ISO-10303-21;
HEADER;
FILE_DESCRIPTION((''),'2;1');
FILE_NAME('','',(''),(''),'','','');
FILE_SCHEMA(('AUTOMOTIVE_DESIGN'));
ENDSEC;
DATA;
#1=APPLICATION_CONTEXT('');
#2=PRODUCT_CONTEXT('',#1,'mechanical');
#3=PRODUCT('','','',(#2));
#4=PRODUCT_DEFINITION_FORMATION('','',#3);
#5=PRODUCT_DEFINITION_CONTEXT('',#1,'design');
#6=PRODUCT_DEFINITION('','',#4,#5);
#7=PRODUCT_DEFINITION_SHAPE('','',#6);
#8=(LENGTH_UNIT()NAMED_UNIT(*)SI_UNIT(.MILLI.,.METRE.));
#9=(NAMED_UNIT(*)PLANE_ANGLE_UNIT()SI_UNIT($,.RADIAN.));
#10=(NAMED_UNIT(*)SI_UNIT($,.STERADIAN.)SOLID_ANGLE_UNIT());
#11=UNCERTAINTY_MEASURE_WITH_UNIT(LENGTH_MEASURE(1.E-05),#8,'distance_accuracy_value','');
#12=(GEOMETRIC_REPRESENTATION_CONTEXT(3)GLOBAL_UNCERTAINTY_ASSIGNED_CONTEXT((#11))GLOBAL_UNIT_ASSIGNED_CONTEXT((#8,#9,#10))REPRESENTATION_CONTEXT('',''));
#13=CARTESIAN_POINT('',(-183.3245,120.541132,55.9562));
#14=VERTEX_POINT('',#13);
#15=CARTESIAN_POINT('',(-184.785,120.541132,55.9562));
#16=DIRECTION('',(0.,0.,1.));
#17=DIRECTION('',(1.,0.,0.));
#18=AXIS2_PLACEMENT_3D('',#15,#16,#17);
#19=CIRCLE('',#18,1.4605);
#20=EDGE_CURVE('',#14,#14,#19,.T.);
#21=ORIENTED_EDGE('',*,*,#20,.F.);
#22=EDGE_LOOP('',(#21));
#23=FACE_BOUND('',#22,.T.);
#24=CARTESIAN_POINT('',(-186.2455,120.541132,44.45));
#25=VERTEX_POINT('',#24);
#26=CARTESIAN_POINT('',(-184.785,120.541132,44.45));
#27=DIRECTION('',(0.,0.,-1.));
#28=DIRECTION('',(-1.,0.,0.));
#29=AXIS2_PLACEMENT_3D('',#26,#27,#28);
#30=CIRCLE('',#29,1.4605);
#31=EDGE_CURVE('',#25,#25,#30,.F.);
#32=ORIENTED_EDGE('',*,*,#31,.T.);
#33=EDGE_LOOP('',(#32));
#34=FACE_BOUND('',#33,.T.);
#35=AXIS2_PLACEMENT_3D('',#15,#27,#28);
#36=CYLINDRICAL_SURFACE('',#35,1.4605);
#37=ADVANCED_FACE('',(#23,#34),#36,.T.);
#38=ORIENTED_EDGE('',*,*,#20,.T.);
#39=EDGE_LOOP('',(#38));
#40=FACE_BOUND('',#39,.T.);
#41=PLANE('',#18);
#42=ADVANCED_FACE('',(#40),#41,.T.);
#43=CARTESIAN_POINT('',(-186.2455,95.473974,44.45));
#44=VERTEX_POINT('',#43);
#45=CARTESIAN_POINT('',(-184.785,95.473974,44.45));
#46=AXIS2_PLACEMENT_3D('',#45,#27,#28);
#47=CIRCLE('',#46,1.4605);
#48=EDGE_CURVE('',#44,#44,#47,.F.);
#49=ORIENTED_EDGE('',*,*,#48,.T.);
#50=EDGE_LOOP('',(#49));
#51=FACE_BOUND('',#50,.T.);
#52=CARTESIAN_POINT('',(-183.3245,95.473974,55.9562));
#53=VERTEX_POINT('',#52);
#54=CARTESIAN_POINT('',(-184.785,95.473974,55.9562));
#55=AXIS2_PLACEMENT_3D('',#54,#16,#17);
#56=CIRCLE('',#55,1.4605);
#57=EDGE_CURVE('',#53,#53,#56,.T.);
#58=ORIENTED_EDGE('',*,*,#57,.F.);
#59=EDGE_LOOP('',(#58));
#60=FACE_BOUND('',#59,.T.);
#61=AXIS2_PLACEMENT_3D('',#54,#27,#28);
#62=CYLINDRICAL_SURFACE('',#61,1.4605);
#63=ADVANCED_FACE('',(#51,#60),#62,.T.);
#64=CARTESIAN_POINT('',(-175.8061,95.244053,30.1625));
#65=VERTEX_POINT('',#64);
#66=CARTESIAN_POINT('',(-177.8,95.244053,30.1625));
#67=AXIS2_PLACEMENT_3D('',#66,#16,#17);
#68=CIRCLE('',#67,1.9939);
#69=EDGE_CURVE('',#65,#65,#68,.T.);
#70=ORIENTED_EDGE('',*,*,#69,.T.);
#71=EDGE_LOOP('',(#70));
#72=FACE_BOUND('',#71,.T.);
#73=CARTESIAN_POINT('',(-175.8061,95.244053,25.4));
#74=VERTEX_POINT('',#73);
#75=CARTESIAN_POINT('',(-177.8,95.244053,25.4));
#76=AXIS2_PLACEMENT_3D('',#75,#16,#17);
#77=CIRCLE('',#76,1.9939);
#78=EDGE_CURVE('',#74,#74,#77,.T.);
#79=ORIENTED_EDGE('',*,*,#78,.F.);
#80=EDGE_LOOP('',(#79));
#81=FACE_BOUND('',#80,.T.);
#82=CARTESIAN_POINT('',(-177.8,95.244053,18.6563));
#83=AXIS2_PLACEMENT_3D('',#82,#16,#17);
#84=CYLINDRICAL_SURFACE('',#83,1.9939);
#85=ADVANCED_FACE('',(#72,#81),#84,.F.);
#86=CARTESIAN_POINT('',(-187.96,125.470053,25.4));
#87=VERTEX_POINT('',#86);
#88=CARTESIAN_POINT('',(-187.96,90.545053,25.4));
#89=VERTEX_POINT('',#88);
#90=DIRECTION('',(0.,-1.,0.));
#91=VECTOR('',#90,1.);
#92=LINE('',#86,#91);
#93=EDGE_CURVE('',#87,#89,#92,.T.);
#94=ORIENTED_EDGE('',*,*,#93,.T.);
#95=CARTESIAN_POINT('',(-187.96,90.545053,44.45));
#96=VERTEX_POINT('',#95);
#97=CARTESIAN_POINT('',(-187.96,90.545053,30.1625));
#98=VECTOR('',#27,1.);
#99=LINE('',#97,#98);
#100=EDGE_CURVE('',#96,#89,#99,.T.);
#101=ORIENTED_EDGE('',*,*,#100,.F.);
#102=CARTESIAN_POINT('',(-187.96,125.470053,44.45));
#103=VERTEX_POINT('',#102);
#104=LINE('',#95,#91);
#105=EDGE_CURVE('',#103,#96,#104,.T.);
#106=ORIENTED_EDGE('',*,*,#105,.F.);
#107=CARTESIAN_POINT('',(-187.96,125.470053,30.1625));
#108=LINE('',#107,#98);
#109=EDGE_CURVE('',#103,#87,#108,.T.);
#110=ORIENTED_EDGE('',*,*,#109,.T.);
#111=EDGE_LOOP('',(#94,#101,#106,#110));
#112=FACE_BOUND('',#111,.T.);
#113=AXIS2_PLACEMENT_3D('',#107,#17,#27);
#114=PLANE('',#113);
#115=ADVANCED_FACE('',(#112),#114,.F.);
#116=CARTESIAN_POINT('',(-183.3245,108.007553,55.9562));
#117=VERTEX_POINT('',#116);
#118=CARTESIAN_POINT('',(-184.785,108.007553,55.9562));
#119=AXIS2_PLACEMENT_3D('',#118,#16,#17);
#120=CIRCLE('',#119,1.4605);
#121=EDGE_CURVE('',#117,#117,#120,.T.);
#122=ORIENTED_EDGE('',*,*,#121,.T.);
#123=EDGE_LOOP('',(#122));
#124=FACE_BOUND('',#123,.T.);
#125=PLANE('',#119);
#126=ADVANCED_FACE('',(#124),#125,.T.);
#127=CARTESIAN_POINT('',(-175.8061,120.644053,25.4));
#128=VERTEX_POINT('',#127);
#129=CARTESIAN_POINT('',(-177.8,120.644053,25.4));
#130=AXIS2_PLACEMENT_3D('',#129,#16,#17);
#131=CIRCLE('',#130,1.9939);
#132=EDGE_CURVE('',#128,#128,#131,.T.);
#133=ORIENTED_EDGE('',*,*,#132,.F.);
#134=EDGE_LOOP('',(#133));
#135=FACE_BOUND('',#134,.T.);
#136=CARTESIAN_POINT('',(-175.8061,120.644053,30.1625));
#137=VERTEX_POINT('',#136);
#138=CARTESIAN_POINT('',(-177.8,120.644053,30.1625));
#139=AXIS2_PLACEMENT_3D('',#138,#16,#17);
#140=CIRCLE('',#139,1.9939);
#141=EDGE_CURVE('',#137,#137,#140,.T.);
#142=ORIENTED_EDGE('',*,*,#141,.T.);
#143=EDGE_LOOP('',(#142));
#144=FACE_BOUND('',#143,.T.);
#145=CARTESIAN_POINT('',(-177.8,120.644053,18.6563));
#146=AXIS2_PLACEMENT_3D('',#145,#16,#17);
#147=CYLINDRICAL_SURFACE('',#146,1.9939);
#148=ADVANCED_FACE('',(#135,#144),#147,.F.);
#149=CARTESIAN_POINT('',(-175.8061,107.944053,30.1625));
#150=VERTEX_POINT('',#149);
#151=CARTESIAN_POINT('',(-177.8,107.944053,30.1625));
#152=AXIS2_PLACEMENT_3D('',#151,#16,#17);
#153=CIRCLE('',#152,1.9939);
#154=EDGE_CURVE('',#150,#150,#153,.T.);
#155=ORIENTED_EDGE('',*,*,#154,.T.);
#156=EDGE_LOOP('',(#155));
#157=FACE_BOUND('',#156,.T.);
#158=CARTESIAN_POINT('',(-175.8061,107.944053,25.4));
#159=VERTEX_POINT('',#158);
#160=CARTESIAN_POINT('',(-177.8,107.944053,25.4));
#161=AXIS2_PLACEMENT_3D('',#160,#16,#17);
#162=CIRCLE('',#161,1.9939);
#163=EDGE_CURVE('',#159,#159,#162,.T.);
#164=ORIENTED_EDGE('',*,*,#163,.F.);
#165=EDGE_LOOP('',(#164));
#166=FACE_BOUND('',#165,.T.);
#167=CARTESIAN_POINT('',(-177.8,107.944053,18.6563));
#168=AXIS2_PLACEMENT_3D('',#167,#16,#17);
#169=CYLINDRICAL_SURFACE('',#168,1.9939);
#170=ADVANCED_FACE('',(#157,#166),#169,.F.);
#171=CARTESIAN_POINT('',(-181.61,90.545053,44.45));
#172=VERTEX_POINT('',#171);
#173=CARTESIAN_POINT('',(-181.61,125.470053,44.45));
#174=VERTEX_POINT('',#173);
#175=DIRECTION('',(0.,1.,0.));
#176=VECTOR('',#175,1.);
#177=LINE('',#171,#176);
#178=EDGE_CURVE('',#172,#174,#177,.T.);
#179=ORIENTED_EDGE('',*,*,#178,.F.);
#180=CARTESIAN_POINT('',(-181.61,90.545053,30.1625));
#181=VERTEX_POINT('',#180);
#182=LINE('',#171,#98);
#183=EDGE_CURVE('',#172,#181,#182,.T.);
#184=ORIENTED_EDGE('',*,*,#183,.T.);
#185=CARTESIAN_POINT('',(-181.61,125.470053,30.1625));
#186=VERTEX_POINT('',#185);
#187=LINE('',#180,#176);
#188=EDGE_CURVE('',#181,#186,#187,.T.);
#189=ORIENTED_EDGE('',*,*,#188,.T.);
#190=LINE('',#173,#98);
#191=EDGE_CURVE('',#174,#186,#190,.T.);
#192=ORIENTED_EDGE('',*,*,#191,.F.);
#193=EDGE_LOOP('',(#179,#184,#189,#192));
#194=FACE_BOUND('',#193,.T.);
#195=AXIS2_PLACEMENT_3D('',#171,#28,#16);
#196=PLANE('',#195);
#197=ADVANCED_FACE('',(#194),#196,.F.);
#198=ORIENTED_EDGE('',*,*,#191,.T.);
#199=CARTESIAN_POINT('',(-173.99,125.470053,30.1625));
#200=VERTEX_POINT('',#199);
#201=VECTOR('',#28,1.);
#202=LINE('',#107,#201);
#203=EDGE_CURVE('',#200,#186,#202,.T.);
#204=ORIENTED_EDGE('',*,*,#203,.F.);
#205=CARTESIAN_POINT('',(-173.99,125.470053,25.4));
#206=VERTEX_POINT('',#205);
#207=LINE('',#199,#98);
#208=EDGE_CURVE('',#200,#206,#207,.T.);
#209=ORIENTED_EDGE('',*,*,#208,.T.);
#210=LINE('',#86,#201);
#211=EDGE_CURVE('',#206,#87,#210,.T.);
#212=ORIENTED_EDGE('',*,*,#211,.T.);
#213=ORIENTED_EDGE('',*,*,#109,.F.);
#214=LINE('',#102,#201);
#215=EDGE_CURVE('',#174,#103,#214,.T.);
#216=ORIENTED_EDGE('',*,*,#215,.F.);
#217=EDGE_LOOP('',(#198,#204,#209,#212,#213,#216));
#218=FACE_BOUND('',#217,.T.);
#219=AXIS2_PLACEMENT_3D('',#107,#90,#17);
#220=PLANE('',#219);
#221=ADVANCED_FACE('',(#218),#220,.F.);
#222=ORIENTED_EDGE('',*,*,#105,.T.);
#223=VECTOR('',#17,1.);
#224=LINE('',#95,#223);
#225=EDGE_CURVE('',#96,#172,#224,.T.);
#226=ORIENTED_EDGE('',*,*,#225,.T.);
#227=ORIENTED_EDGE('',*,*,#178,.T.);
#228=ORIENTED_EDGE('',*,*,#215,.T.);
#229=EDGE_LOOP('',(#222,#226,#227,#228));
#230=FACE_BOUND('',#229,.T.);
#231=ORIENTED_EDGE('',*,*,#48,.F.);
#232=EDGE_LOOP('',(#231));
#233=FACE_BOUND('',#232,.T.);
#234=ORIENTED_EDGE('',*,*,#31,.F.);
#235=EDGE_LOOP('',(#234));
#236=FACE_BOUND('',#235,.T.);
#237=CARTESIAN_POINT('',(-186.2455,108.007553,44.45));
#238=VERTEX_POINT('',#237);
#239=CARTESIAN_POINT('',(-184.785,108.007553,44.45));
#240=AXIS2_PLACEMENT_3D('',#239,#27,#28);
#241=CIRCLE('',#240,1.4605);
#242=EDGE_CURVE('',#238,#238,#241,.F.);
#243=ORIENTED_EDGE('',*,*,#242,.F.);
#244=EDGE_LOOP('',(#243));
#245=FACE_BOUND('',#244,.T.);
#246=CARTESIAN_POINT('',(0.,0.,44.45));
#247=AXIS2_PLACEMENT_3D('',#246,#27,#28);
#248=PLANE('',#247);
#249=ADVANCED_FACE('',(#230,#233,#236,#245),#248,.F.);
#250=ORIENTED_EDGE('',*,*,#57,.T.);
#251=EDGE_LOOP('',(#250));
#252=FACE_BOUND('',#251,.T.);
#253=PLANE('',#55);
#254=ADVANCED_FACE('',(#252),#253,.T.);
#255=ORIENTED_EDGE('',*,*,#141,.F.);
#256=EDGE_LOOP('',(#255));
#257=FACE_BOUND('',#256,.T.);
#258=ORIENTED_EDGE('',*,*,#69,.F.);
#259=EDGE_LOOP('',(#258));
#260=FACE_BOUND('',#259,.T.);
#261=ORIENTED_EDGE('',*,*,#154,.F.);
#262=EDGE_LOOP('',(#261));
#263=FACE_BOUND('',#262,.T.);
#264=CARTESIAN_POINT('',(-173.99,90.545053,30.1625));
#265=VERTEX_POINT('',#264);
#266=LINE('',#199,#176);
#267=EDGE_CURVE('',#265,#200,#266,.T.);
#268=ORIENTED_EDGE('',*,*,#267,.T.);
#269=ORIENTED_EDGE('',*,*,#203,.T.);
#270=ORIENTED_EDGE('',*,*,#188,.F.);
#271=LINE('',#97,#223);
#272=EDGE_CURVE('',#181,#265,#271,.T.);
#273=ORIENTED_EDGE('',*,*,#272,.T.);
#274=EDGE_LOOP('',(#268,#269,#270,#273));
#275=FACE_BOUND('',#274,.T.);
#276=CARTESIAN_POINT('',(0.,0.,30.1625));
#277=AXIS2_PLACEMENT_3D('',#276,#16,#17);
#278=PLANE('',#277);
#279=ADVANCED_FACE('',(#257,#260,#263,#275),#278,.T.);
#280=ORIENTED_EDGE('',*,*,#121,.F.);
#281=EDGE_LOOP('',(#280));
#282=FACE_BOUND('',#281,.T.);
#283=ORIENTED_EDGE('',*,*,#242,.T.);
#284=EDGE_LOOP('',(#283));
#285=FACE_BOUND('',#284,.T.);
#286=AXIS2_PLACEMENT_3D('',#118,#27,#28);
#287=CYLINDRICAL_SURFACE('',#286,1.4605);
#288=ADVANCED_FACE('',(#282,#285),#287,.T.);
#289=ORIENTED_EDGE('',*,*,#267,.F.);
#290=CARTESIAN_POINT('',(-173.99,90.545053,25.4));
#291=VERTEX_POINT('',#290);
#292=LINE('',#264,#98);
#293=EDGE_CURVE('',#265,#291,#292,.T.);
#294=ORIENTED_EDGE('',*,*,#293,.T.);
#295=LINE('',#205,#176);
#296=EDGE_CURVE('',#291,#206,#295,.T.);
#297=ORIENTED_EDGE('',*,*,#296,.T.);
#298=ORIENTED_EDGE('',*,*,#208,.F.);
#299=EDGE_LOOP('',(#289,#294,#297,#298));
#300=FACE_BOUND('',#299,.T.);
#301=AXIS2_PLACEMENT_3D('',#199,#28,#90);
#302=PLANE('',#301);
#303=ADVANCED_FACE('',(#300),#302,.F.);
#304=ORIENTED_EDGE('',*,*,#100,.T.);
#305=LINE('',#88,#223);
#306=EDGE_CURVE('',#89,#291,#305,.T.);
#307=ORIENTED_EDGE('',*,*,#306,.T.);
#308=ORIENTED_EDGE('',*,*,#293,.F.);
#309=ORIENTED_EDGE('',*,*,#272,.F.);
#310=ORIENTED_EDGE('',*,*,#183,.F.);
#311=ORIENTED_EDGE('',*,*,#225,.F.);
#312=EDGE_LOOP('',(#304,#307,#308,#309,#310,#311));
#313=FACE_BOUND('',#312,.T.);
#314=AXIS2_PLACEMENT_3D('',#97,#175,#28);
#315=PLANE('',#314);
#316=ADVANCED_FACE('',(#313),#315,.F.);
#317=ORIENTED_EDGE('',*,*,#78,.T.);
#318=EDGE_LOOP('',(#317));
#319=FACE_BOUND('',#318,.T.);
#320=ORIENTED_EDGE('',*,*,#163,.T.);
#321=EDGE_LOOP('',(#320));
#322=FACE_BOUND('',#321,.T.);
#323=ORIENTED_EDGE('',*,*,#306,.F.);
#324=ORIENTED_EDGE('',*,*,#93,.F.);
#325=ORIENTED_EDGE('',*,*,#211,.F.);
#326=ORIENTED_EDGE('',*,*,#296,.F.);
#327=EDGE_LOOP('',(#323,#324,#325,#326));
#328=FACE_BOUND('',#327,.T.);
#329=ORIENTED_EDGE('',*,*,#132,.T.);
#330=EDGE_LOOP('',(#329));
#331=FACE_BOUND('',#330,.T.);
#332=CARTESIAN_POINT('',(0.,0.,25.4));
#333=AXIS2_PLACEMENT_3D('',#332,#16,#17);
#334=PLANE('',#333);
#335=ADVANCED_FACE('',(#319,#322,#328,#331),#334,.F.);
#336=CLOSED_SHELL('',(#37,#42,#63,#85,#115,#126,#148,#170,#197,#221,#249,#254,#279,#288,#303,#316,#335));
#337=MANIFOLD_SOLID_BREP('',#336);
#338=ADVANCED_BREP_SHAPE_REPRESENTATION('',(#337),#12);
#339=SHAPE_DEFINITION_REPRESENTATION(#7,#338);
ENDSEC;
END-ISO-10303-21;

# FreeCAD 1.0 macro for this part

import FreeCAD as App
import Part
import Sketcher

V = App.Vector
Q = App.Units.Quantity

doc = App.newDocument("Part")
body = doc.addObject("PartDesign::Body", "Body")

sketch1 = body.newObject("Sketcher::SketchObject", "Sketch")
sketch1.AttachmentSupport = (doc.getObject("XY_Plane"), [""])
sketch1.MapMode = "FlatFace"
sketch1.AttachmentOffset = App.Placement(V(0, 0, 1 * 25.4), App.Rotation())
sketch1.addGeometry(Part.LineSegment(V(-188, 125, 0), V(-188, 91, 0)), False)
sketch1.addGeometry(Part.LineSegment(V(-188, 91, 0), V(-174, 91, 0)), False)
sketch1.addGeometry(Part.LineSegment(V(-174, 91, 0), V(-174, 125, 0)), False)
sketch1.addGeometry(Part.LineSegment(V(-174, 125, 0), V(-188, 125, 0)), False)
sketch1.addConstraint(Sketcher.Constraint("Coincident", 0, 2, 1, 1))
sketch1.addConstraint(Sketcher.Constraint("Coincident", 1, 2, 2, 1))
sketch1.addConstraint(Sketcher.Constraint("Coincident", 2, 2, 3, 1))
sketch1.addConstraint(Sketcher.Constraint("Coincident", 3, 2, 0, 1))
sketch1.addConstraint(Sketcher.Constraint("Vertical", 0))
sketch1.addConstraint(Sketcher.Constraint("Horizontal", 1))
sketch1.addConstraint(Sketcher.Constraint("Vertical", 2))
sketch1.addConstraint(Sketcher.Constraint("Horizontal", 3))
sketch1.addConstraint(Sketcher.Constraint("DistanceX", 1, 1, 1, 2, Q("0.55 in")))
sketch1.addConstraint(Sketcher.Constraint("DistanceX", 0, 2, -1, 1, Q("7.4 in")))
sketch1.addConstraint(Sketcher.Constraint("DistanceY", 0, 2, 0, 1, Q("1.375 in")))
sketch1.addConstraint(Sketcher.Constraint("DistanceY", -1, 1, 0, 2, 90.545053))
pad1 = body.newObject("PartDesign::Pad", "Pad")
pad1.Profile = sketch1
pad1.Length = Q("0.1875 in")

sketch2 = body.newObject("Sketcher::SketchObject", "Sketch001")
sketch2.AttachmentSupport = (doc.getObject("XY_Plane"), [""])
sketch2.MapMode = "FlatFace"
sketch2.AttachmentOffset = App.Placement(V(0, 0, 1.1875 * 25.4), App.Rotation())
sketch2.addGeometry(Part.LineSegment(V(-188, 125, 0), V(-188, 91, 0)), False)
sketch2.addGeometry(Part.LineSegment(V(-188, 91, 0), V(-182, 91, 0)), False)
sketch2.addGeometry(Part.LineSegment(V(-182, 91, 0), V(-182, 125, 0)), False)
sketch2.addGeometry(Part.LineSegment(V(-182, 125, 0), V(-188, 125, 0)), False)
sketch2.addConstraint(Sketcher.Constraint("Coincident", 0, 2, 1, 1))
sketch2.addConstraint(Sketcher.Constraint("Coincident", 1, 2, 2, 1))
sketch2.addConstraint(Sketcher.Constraint("Coincident", 2, 2, 3, 1))
sketch2.addConstraint(Sketcher.Constraint("Coincident", 3, 2, 0, 1))
sketch2.addConstraint(Sketcher.Constraint("Vertical", 0))
sketch2.addConstraint(Sketcher.Constraint("Horizontal", 1))
sketch2.addConstraint(Sketcher.Constraint("Vertical", 2))
sketch2.addConstraint(Sketcher.Constraint("Horizontal", 3))
sketch2.addConstraint(Sketcher.Constraint("DistanceX", 1, 1, 1, 2, Q("0.25 in")))
sketch2.addConstraint(Sketcher.Constraint("DistanceX", 0, 2, -1, 1, Q("7.4 in")))
sketch2.addConstraint(Sketcher.Constraint("DistanceY", 0, 2, 0, 1, Q("1.375 in")))
sketch2.addConstraint(Sketcher.Constraint("DistanceY", -1, 1, 0, 2, 90.545053))
pad2 = body.newObject("PartDesign::Pad", "Pad001")
pad2.Profile = sketch2
pad2.Length = Q("0.5625 in")

sketch3 = body.newObject("Sketcher::SketchObject", "Sketch002")
sketch3.AttachmentSupport = (doc.getObject("XY_Plane"), [""])
sketch3.MapMode = "FlatFace"
sketch3.AttachmentOffset = App.Placement(V(0, 0, 1.75 * 25.4), App.Rotation())
sketch3.addGeometry(Part.Circle(V(-184.8, 120.5, 0), V(0, 0, 1), 1.5), False)
sketch3.addGeometry(Part.Circle(V(-184.8, 108, 0), V(0, 0, 1), 1.5), False)
sketch3.addGeometry(Part.Circle(V(-184.8, 95.5, 0), V(0, 0, 1), 1.5), False)
sketch3.addConstraint(Sketcher.Constraint("Equal", 0, 1))
sketch3.addConstraint(Sketcher.Constraint("Equal", 1, 2))
sketch3.addConstraint(Sketcher.Constraint("Vertical", 0, 3, 1, 3))
sketch3.addConstraint(Sketcher.Constraint("Vertical", 1, 3, 2, 3))
sketch3.addConstraint(Sketcher.Constraint("Diameter", 0, Q("0.115 in")))
sketch3.addConstraint(Sketcher.Constraint("DistanceX", 0, 3, -1, 1, Q("7.275 in")))
sketch3.addConstraint(Sketcher.Constraint("DistanceY", 1, 3, 0, 3, 12.533579))
sketch3.addConstraint(Sketcher.Constraint("DistanceY", 2, 3, 1, 3, 12.533579))
sketch3.addConstraint(Sketcher.Constraint("DistanceY", -1, 1, 0, 3, 120.541132))
pad3 = body.newObject("PartDesign::Pad", "Pad002")
pad3.Profile = sketch3
pad3.Length = Q("0.453 in")

sketch4 = body.newObject("Sketcher::SketchObject", "Sketch003")
sketch4.AttachmentSupport = (doc.getObject("XY_Plane"), [""])
sketch4.MapMode = "FlatFace"
sketch4.AttachmentOffset = App.Placement(V(0, 0, 1.1875 * 25.4), App.Rotation())
sketch4.addGeometry(Part.Circle(V(-177.8, 95.2, 0), V(0, 0, 1), 2), False)
sketch4.addGeometry(Part.Circle(V(-177.8, 107.9, 0), V(0, 0, 1), 2), False)
sketch4.addGeometry(Part.Circle(V(-177.8, 120.6, 0), V(0, 0, 1), 2), False)
sketch4.addConstraint(Sketcher.Constraint("Equal", 0, 1))
sketch4.addConstraint(Sketcher.Constraint("Equal", 1, 2))
sketch4.addConstraint(Sketcher.Constraint("Vertical", 0, 3, 1, 3))
sketch4.addConstraint(Sketcher.Constraint("Vertical", 1, 3, 2, 3))
sketch4.addConstraint(Sketcher.Constraint("Diameter", 0, Q("0.157 in")))
sketch4.addConstraint(Sketcher.Constraint("DistanceX", 0, 3, -1, 1, Q("7 in")))
sketch4.addConstraint(Sketcher.Constraint("DistanceY", 0, 3, 2, 3, Q("1 in")))
sketch4.addConstraint(Sketcher.Constraint("DistanceY", 0, 3, 1, 3, Q("0.5 in")))
sketch4.addConstraint(Sketcher.Constraint("DistanceY", -1, 1, 0, 3, 95.244053))
pocket1 = body.newObject("PartDesign::Pocket", "Pocket")
pocket1.Profile = sketch4
pocket1.Length = Q("0.453 in")

doc.recompute()
